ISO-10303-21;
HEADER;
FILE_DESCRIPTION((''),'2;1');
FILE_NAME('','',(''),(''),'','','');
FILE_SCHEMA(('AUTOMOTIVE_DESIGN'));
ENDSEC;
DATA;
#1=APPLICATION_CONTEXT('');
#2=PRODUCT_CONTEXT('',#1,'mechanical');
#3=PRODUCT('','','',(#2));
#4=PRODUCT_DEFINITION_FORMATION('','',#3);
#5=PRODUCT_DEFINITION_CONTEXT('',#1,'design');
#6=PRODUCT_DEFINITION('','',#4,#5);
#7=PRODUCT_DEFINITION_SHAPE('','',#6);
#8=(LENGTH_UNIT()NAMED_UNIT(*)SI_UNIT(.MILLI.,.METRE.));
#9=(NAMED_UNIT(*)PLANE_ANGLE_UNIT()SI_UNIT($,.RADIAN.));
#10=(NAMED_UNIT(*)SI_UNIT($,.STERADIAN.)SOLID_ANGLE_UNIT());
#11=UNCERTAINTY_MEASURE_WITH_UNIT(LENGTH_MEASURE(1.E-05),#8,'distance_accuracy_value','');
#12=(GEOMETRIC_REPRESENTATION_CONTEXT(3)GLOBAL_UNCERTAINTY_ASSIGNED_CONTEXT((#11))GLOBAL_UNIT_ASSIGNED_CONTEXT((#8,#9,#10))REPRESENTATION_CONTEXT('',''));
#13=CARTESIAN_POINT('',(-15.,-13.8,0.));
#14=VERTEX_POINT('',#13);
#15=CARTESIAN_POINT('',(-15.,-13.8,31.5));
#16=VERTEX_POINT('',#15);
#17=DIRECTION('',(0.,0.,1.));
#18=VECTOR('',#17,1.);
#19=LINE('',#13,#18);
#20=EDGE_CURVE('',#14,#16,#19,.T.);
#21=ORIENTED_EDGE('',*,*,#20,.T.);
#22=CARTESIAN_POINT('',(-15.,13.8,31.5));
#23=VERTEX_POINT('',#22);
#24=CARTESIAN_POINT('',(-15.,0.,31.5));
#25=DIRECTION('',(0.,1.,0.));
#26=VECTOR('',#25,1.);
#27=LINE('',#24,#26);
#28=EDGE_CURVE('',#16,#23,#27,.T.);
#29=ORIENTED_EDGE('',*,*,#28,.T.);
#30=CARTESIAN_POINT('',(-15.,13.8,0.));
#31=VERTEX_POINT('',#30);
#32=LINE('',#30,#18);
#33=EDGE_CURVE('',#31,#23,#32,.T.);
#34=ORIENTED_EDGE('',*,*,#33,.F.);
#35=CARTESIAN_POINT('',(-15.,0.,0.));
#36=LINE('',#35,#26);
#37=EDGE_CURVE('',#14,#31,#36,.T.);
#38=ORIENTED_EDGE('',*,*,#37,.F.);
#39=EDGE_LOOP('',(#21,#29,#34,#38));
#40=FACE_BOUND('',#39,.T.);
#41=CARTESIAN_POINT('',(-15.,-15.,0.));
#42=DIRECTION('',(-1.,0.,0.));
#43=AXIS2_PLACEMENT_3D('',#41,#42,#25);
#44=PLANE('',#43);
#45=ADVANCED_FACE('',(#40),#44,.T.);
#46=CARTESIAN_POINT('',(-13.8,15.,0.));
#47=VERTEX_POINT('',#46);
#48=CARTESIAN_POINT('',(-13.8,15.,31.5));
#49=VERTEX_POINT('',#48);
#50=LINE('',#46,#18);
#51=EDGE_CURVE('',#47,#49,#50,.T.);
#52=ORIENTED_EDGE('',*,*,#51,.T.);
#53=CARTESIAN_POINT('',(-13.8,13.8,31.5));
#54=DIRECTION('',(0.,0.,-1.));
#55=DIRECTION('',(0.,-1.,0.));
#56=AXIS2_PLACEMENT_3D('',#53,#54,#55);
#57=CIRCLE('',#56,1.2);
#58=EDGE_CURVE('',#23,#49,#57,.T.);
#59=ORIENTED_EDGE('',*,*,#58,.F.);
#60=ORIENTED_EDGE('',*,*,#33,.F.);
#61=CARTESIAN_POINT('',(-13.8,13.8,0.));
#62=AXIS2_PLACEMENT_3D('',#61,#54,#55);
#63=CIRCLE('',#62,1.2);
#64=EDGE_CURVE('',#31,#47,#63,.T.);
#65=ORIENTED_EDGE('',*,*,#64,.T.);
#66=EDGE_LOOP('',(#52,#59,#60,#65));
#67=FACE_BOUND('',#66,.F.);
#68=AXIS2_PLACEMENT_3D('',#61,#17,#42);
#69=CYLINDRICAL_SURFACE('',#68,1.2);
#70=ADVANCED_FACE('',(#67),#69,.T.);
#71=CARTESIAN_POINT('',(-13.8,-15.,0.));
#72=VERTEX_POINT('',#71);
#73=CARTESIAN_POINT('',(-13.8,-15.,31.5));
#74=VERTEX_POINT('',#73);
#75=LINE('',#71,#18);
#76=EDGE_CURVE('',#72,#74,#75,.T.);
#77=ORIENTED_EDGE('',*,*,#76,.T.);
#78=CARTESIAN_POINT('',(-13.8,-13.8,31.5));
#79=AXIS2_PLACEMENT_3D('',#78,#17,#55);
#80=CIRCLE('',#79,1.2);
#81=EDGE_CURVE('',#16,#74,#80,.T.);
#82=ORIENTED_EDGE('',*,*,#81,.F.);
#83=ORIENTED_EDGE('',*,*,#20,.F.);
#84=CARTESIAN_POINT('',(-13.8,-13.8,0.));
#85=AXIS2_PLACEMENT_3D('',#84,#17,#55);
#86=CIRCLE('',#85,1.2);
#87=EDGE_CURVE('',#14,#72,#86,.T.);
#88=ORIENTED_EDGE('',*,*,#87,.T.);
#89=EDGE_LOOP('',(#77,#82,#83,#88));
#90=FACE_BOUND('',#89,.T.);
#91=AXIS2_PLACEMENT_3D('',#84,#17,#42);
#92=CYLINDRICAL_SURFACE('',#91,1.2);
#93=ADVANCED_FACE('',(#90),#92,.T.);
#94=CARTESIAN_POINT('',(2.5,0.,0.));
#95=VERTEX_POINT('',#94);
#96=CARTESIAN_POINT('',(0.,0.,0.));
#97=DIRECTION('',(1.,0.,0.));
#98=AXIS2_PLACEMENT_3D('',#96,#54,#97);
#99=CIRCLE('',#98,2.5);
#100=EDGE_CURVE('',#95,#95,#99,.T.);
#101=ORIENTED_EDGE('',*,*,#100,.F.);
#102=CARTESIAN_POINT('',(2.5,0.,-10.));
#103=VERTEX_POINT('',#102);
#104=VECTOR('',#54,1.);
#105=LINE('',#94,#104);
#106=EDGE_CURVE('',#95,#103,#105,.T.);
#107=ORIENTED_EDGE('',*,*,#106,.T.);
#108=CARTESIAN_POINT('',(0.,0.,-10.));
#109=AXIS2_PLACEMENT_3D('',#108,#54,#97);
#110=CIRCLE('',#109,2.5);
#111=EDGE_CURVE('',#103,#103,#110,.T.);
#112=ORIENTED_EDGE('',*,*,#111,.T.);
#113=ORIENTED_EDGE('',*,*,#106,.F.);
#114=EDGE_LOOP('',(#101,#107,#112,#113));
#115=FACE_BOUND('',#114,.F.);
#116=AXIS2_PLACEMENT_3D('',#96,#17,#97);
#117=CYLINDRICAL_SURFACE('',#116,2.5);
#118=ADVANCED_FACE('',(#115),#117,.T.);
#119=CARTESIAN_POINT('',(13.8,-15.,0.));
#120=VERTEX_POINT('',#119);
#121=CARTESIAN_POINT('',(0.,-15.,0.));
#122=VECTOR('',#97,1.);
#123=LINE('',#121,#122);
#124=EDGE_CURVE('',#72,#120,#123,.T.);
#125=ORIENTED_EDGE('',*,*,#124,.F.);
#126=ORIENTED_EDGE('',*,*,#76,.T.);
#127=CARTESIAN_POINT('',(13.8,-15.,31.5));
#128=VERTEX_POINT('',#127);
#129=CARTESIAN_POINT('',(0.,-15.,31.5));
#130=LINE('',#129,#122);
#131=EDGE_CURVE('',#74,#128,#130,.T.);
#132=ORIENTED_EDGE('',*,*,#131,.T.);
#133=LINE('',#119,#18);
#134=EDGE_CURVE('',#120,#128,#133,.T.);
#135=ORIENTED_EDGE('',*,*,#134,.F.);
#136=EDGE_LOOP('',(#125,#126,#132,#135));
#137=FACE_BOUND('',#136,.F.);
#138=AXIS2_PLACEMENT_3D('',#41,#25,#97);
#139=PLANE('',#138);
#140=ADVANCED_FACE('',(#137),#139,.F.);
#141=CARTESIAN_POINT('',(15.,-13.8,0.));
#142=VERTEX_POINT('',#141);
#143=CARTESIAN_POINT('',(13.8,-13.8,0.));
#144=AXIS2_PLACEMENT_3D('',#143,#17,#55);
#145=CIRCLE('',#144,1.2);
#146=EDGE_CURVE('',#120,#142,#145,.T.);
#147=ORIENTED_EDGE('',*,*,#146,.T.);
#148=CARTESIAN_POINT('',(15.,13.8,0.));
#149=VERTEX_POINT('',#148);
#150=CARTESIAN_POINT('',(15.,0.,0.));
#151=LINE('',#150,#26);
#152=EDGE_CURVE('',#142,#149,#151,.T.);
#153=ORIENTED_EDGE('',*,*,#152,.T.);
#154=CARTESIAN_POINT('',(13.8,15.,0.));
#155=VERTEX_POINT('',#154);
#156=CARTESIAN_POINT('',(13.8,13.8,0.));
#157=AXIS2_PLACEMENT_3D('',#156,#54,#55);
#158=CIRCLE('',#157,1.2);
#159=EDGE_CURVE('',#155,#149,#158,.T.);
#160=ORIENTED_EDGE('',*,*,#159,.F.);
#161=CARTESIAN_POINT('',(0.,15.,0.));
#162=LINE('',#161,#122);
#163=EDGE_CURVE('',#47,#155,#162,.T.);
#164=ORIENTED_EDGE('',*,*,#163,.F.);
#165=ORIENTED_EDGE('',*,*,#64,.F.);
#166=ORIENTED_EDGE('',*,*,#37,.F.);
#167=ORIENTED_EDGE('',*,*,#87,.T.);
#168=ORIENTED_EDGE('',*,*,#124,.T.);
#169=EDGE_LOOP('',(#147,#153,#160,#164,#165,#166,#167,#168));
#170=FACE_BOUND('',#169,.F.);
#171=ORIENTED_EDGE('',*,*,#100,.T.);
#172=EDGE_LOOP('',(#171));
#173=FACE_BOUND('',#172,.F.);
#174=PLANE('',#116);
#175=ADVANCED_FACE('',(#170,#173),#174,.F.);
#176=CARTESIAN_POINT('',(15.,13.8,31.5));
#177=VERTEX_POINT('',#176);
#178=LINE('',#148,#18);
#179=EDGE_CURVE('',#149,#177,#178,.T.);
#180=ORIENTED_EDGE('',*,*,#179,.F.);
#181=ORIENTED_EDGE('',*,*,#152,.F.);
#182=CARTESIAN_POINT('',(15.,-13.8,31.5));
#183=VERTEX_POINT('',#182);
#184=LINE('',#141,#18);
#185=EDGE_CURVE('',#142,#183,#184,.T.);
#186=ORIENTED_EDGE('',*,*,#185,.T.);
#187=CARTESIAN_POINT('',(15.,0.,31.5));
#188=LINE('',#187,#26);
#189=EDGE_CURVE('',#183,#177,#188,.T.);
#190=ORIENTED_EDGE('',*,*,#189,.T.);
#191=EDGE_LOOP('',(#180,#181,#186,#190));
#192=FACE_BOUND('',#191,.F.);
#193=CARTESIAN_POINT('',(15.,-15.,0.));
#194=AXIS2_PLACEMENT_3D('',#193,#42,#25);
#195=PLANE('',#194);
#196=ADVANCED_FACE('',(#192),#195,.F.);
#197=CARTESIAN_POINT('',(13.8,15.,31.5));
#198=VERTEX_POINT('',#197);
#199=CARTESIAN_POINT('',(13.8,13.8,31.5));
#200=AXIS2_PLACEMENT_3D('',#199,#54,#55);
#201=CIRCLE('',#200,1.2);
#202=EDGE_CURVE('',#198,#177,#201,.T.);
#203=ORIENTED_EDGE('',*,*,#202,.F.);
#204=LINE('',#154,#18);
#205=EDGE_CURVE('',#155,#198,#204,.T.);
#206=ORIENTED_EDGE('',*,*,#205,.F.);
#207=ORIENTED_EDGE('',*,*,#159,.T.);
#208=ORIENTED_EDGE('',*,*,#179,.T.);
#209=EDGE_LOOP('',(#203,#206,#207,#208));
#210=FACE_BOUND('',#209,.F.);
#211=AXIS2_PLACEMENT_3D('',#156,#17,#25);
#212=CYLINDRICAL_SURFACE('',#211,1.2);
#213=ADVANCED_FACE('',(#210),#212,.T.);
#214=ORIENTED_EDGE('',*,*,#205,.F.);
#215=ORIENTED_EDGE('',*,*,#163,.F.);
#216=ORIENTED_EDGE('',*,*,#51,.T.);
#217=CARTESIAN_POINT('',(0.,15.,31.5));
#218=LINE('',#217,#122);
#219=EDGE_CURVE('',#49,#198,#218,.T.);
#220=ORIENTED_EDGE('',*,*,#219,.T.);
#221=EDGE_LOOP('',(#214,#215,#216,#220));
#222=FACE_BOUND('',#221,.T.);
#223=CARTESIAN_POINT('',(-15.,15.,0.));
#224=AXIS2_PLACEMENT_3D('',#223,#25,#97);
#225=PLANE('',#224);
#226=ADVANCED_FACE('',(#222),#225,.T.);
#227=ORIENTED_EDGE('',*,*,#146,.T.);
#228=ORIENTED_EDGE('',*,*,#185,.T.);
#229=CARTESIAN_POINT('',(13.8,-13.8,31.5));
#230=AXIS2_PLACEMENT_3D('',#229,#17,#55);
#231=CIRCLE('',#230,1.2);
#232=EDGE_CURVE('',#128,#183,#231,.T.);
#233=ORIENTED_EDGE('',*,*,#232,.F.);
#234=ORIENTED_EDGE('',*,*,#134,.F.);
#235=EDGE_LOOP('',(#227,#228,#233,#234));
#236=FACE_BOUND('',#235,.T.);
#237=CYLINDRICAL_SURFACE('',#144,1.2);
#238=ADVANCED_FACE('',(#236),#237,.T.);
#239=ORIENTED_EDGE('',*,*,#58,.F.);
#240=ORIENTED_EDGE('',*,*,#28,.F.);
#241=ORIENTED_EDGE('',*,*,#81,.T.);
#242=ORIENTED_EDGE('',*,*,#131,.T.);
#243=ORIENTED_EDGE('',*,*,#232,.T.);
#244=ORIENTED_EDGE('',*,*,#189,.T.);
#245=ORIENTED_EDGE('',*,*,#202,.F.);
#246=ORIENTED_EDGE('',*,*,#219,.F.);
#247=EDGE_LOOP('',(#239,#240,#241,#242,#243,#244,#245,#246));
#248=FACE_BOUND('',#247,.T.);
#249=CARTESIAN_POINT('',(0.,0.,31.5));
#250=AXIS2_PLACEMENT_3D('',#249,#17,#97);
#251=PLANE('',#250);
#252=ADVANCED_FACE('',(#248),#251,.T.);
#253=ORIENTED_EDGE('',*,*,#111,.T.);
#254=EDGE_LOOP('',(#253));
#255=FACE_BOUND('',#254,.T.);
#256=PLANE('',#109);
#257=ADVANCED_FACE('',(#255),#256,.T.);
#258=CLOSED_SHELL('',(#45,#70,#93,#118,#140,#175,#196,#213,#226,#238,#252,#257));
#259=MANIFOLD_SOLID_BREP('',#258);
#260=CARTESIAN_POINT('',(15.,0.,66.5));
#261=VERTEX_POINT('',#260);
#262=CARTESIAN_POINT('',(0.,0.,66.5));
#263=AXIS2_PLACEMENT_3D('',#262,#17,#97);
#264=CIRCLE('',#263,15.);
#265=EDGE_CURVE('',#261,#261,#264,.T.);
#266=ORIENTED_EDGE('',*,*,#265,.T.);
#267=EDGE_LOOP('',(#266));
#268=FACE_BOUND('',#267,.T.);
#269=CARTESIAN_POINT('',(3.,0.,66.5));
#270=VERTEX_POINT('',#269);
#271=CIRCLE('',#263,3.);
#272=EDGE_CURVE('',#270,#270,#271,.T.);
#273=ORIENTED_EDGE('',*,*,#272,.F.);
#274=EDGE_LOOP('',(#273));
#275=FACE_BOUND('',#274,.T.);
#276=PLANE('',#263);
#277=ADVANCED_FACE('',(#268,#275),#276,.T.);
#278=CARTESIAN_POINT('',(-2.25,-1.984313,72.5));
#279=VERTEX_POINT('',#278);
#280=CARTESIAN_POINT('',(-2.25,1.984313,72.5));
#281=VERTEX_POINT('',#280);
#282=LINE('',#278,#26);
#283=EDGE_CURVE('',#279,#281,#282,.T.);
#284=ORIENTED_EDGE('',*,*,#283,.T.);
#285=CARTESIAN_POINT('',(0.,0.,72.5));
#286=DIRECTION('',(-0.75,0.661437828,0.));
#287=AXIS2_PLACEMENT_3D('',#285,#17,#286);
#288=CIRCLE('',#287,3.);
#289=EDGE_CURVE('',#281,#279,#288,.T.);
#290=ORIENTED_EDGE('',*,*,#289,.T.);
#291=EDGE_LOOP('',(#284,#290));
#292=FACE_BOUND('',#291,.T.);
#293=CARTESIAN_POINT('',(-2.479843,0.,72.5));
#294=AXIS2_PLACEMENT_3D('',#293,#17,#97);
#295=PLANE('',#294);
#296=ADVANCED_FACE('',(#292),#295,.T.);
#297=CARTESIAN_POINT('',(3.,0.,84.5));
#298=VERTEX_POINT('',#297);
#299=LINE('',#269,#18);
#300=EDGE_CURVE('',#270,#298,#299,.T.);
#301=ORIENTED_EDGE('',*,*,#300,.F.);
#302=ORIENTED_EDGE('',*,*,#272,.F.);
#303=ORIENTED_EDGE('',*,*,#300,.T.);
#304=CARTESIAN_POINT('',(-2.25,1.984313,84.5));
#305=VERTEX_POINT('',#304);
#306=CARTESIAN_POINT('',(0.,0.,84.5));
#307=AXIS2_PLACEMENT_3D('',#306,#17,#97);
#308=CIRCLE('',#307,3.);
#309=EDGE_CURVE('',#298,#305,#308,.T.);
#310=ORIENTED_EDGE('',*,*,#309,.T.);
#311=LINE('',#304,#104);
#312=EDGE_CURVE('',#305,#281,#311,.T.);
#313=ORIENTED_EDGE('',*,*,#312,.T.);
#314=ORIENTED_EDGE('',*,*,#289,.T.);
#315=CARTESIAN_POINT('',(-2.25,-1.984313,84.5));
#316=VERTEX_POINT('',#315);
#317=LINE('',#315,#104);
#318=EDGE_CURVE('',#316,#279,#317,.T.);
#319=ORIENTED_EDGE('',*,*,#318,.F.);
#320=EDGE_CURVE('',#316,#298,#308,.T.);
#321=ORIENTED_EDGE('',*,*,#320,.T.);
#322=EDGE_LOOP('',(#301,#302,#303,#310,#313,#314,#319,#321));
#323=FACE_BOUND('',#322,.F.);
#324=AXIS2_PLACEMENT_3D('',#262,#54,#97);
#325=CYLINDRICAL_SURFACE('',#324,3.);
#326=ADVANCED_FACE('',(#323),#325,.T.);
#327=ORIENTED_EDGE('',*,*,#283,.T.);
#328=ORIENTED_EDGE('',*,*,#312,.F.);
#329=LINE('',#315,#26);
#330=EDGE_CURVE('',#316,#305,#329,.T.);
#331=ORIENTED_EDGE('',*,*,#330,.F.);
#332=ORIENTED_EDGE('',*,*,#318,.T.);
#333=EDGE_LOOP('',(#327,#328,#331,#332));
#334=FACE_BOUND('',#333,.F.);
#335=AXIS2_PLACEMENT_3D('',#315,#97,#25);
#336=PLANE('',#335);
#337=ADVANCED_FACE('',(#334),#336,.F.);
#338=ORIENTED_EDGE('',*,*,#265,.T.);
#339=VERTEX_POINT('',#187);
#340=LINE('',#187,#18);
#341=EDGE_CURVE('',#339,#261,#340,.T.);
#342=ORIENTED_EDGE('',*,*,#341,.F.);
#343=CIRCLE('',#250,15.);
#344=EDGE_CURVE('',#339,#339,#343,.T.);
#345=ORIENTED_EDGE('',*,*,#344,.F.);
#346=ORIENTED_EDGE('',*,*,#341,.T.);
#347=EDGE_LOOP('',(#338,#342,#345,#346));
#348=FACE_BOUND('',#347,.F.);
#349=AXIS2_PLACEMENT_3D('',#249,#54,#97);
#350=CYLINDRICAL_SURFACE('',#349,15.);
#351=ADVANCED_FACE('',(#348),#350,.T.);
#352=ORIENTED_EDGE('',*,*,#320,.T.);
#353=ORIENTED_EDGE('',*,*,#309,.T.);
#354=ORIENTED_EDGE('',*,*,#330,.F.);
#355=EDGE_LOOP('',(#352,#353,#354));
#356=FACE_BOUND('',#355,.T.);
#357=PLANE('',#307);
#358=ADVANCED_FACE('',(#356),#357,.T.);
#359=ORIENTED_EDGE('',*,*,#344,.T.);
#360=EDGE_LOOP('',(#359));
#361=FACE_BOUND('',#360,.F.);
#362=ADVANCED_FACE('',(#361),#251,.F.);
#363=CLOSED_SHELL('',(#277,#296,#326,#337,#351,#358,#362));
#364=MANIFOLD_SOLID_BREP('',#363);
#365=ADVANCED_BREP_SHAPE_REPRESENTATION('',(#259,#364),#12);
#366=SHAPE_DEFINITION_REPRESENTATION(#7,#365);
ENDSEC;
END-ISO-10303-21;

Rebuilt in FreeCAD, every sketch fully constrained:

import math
import FreeCAD as App
import Part
import Sketcher
from FreeCAD import Vector


def edges_at(feature, points):
    """Names of the edges that pass closest to the given points."""
    edges = feature.Shape.Edges
    near = lambda p: min(range(len(edges)), key=lambda i: edges[i].distToShape(Part.Vertex(*p))[0])
    return sorted({f"Edge{near(p) + 1}" for p in points})


def add_polygon(sketch, points):
    """Adds a closed chain of lines whose ends are joined by coincident constraints."""
    first, n = sketch.GeometryCount, len(points)
    for a, b in zip(points, points[1:] + points[:1]):
        sketch.addGeometry(Part.LineSegment(App.Vector(*a, 0), App.Vector(*b, 0)), False)
    for i in range(n):
        sketch.addConstraint(Sketcher.Constraint("Coincident", first + i, 2, first + (i + 1) % n, 1))

doc = App.newDocument("Part")
body = doc.addObject("PartDesign::Body", "Body")

# Sketch on XY plane
sketch1 = body.newObject("Sketcher::SketchObject", "Sketch")
sketch1.AttachmentSupport = (doc.getObject("XY_Plane"), [""])
sketch1.MapMode = "FlatFace"
add_polygon(sketch1, [(-15, 15), (-15, -15), (15, -15), (15, 15)])  # lines 0-3
sketch1.addConstraint(Sketcher.Constraint("Vertical", 0))
sketch1.addConstraint(Sketcher.Constraint("Horizontal", 1))
sketch1.addConstraint(Sketcher.Constraint("Vertical", 2))
sketch1.addConstraint(Sketcher.Constraint("Horizontal", 3))
sketch1.addConstraint(Sketcher.Constraint("Symmetric", 0, 2, 2, 2, -1, 1))
sketch1.addConstraint(Sketcher.Constraint("Equal", 3, 0))
sketch1.addConstraint(Sketcher.Constraint("DistanceX", 1, 1, 1, 2, 30.0))
pad1 = body.newObject("PartDesign::Pad", "Pad")
pad1.Profile = sketch1
pad1.Length = 31.5

# Sketch on XY plane
sketch2 = body.newObject("Sketcher::SketchObject", "Sketch001")
sketch2.AttachmentSupport = (doc.getObject("XY_Plane"), [""])
sketch2.MapMode = "FlatFace"
sketch2.addGeometry(Part.Circle(Vector(0, 0, 0), Vector(0, 0, 1), 2.5), False)
sketch2.addConstraint(Sketcher.Constraint("Coincident", 0, 3, -1, 1))
sketch2.addConstraint(Sketcher.Constraint("Diameter", 0, 5.0))
pad2 = body.newObject("PartDesign::Pad", "Pad001")
pad2.Profile = sketch2
pad2.Length = 10
pad2.Reversed = True
doc.recompute()

fillet = body.newObject("PartDesign::Fillet", "Fillet")
fillet.Base = (pad2, edges_at(pad2, [
    (-15, -15, 15.75),
    (15, -15, 15.75),
    (15, 15, 15.75),
    (-15, 15, 15.75),
]))
fillet.Radius = 1.2
body2 = doc.addObject("PartDesign::Body", "Body001")

# Sketch on XY plane
sketch3 = body2.newObject("Sketcher::SketchObject", "Sketch002")
sketch3.AttachmentSupport = (doc.getObject("XY_Plane001"), [""])
sketch3.MapMode = "FlatFace"
sketch3.AttachmentOffset = App.Placement(Vector(0, 0, 31.5), App.Rotation())
sketch3.addGeometry(Part.Circle(Vector(0, 0, 0), Vector(0, 0, 1), 15), False)
sketch3.addConstraint(Sketcher.Constraint("Coincident", 0, 3, -1, 1))
sketch3.addConstraint(Sketcher.Constraint("Diameter", 0, 30.0))
pad3 = body2.newObject("PartDesign::Pad", "Pad002")
pad3.Profile = sketch3
pad3.Length = 35

# Sketch on XY plane
sketch4 = body2.newObject("Sketcher::SketchObject", "Sketch003")
sketch4.AttachmentSupport = (doc.getObject("XY_Plane001"), [""])
sketch4.MapMode = "FlatFace"
sketch4.AttachmentOffset = App.Placement(Vector(0, 0, 66.5), App.Rotation())
sketch4.addGeometry(Part.Circle(Vector(0, 0, 0), Vector(0, 0, 1), 3), False)
sketch4.addConstraint(Sketcher.Constraint("Coincident", 0, 3, -1, 1))
sketch4.addConstraint(Sketcher.Constraint("Diameter", 0, 6.0))
pad4 = body2.newObject("PartDesign::Pad", "Pad003")
pad4.Profile = sketch4
pad4.Length = 18

# Sketch on XY plane
sketch5 = body2.newObject("Sketcher::SketchObject", "Sketch004")
sketch5.AttachmentSupport = (doc.getObject("XY_Plane001"), [""])
sketch5.MapMode = "FlatFace"
sketch5.AttachmentOffset = App.Placement(Vector(0, 0, 84.5), App.Rotation())
sketch5.addGeometry(Part.LineSegment(Vector(-2.2, -2, 0), Vector(-2.2, 2, 0)), False)
sketch5.addGeometry(Part.ArcOfCircle(Part.Circle(Vector(0, 0, 0), Vector(0, 0, 1), 3), math.radians(139), math.radians(221)), False)
sketch5.addConstraint(Sketcher.Constraint("Coincident", 0, 1, 1, 2))
sketch5.addConstraint(Sketcher.Constraint("Coincident", 1, 1, 0, 2))
sketch5.addConstraint(Sketcher.Constraint("Vertical", 0))
sketch5.addConstraint(Sketcher.Constraint("Coincident", 1, 3, -1, 1))
sketch5.addConstraint(Sketcher.Constraint("Radius", 1, 3.0))
sketch5.addConstraint(Sketcher.Constraint("DistanceX", 0, 1, -1, 1, 2.25))
pocket1 = body2.newObject("PartDesign::Pocket", "Pocket")
pocket1.Profile = sketch5
pocket1.Length = 12

doc.recompute()
